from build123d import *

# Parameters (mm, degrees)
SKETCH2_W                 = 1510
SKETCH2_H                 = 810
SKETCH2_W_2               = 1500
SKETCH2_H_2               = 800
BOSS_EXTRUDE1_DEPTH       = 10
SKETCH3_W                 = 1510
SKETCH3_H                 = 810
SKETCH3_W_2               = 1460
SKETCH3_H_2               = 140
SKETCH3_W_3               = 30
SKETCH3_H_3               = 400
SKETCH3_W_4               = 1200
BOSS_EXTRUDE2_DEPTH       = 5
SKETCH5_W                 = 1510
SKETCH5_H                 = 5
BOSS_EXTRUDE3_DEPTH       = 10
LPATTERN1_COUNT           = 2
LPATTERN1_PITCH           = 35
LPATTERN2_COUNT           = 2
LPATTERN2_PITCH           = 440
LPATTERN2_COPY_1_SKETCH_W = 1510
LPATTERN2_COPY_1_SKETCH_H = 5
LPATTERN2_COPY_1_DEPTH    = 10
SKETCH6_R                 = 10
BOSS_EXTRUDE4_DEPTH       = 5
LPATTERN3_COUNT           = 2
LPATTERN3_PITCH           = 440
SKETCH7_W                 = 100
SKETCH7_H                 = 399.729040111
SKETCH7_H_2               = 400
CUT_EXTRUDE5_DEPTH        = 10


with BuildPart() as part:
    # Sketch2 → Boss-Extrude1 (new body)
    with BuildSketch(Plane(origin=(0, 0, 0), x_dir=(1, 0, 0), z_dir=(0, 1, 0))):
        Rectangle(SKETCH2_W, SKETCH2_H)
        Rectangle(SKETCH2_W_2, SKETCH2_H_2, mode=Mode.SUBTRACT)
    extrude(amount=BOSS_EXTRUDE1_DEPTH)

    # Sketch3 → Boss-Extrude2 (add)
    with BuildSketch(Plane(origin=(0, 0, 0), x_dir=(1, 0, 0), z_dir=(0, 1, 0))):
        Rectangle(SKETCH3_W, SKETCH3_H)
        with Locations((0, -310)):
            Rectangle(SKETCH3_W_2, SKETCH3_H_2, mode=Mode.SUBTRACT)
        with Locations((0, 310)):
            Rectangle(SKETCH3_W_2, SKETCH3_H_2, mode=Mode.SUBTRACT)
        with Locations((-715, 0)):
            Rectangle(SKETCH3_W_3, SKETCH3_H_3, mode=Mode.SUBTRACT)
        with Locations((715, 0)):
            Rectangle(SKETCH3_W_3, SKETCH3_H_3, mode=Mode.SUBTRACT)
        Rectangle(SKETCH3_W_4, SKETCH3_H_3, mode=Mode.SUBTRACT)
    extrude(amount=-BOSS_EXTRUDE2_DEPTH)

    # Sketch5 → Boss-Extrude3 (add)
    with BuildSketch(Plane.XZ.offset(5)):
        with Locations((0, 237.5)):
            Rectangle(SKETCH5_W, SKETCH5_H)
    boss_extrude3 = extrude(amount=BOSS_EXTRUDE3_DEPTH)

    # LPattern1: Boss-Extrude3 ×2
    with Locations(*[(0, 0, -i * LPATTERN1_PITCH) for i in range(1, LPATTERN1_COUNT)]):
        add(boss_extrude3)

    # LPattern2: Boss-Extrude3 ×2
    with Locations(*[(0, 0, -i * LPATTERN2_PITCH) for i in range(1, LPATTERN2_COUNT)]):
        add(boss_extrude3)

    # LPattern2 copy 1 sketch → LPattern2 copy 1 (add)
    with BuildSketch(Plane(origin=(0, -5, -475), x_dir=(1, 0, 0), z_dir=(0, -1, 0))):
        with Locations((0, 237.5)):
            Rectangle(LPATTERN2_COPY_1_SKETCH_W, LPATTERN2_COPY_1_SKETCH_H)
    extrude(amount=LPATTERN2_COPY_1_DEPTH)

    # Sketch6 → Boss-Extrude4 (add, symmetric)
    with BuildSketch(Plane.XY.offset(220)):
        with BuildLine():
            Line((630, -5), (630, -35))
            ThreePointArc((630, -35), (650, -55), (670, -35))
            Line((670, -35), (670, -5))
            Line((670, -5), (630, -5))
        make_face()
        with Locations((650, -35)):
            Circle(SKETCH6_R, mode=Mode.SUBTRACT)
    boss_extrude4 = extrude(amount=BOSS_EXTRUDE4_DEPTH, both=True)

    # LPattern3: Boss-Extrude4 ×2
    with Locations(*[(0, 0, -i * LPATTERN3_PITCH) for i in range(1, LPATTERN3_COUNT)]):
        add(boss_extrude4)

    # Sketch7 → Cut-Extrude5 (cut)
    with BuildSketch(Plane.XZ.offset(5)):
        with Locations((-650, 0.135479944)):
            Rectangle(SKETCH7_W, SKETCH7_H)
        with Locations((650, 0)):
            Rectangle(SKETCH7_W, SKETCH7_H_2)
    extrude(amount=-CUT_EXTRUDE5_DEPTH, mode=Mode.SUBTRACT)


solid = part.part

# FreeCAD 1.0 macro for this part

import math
import FreeCAD as App
import Part
import Sketcher
from FreeCAD import Vector

doc = App.newDocument("Part")
body = doc.addObject("PartDesign::Body", "Body")

# Sketch on XZ plane
sketch1 = body.newObject("Sketcher::SketchObject", "Sketch")
sketch1.AttachmentSupport = (doc.getObject("XZ_Plane"), [""])
sketch1.MapMode = "FlatFace"
sketch1.addGeometry(Part.LineSegment(Vector(-755, -405, 0), Vector(-755, 405, 0)), False)
sketch1.addGeometry(Part.LineSegment(Vector(-755, 405, 0), Vector(755, 405, 0)), False)
sketch1.addGeometry(Part.LineSegment(Vector(755, 405, 0), Vector(755, -405, 0)), False)
sketch1.addGeometry(Part.LineSegment(Vector(755, -405, 0), Vector(-755, -405, 0)), False)
sketch1.addGeometry(Part.LineSegment(Vector(750, 400, 0), Vector(-750, 400, 0)), False)
sketch1.addGeometry(Part.LineSegment(Vector(-750, 400, 0), Vector(-750, -400, 0)), False)
sketch1.addGeometry(Part.LineSegment(Vector(-750, -400, 0), Vector(750, -400, 0)), False)
sketch1.addGeometry(Part.LineSegment(Vector(750, -400, 0), Vector(750, 400, 0)), False)
sketch1.addConstraint(Sketcher.Constraint("Coincident", 0, 2, 1, 1))
sketch1.addConstraint(Sketcher.Constraint("Coincident", 1, 2, 2, 1))
sketch1.addConstraint(Sketcher.Constraint("Coincident", 2, 2, 3, 1))
sketch1.addConstraint(Sketcher.Constraint("Coincident", 3, 2, 0, 1))
sketch1.addConstraint(Sketcher.Constraint("Coincident", 4, 2, 5, 1))
sketch1.addConstraint(Sketcher.Constraint("Coincident", 5, 2, 6, 1))
sketch1.addConstraint(Sketcher.Constraint("Coincident", 6, 2, 7, 1))
sketch1.addConstraint(Sketcher.Constraint("Coincident", 7, 2, 4, 1))
sketch1.addConstraint(Sketcher.Constraint("Vertical", 0))
sketch1.addConstraint(Sketcher.Constraint("Horizontal", 1))
sketch1.addConstraint(Sketcher.Constraint("Vertical", 2))
sketch1.addConstraint(Sketcher.Constraint("Horizontal", 3))
sketch1.addConstraint(Sketcher.Constraint("Horizontal", 4))
sketch1.addConstraint(Sketcher.Constraint("Vertical", 5))
sketch1.addConstraint(Sketcher.Constraint("Horizontal", 6))
sketch1.addConstraint(Sketcher.Constraint("Vertical", 7))
sketch1.addConstraint(Sketcher.Constraint("Symmetric", 0, 2, 2, 2, -1, 1))
sketch1.addConstraint(Sketcher.Constraint("Symmetric", 4, 2, 6, 2, -1, 1))
sketch1.addConstraint(Sketcher.Constraint("DistanceX", 1, 1, 1, 2, 1510.0))
sketch1.addConstraint(Sketcher.Constraint("DistanceX", 4, 2, 4, 1, 1500.0))
sketch1.addConstraint(Sketcher.Constraint("DistanceY", 0, 1, 0, 2, 810.0))
sketch1.addConstraint(Sketcher.Constraint("DistanceY", 5, 2, 5, 1, 800.0))
pad1 = body.newObject("PartDesign::Pad", "Pad")
pad1.Profile = sketch1
pad1.Length = 10
pad1.Reversed = True

# Sketch on XZ plane
sketch2 = body.newObject("Sketcher::SketchObject", "Sketch001")
sketch2.AttachmentSupport = (doc.getObject("XZ_Plane"), [""])
sketch2.MapMode = "FlatFace"
sketch2.addGeometry(Part.LineSegment(Vector(-755, -405, 0), Vector(-755, 405, 0)), False)
sketch2.addGeometry(Part.LineSegment(Vector(-755, 405, 0), Vector(755, 405, 0)), False)
sketch2.addGeometry(Part.LineSegment(Vector(755, 405, 0), Vector(755, -405, 0)), False)
sketch2.addGeometry(Part.LineSegment(Vector(755, -405, 0), Vector(-755, -405, 0)), False)
sketch2.addGeometry(Part.LineSegment(Vector(730, 380, 0), Vector(-730, 380, 0)), False)
sketch2.addGeometry(Part.LineSegment(Vector(-730, 380, 0), Vector(-730, 240, 0)), False)
sketch2.addGeometry(Part.LineSegment(Vector(-730, 240, 0), Vector(730, 240, 0)), False)
sketch2.addGeometry(Part.LineSegment(Vector(730, 240, 0), Vector(730, 380, 0)), False)
sketch2.addGeometry(Part.LineSegment(Vector(-700, 200, 0), Vector(-730, 200, 0)), False)
sketch2.addGeometry(Part.LineSegment(Vector(-730, 200, 0), Vector(-730, -200, 0)), False)
sketch2.addGeometry(Part.LineSegment(Vector(-730, -200, 0), Vector(-700, -200, 0)), False)
sketch2.addGeometry(Part.LineSegment(Vector(-700, -200, 0), Vector(-700, 200, 0)), False)
sketch2.addGeometry(Part.LineSegment(Vector(600, 200, 0), Vector(-600, 200, 0)), False)
sketch2.addGeometry(Part.LineSegment(Vector(-600, 200, 0), Vector(-600, -200, 0)), False)
sketch2.addGeometry(Part.LineSegment(Vector(-600, -200, 0), Vector(600, -200, 0)), False)
sketch2.addGeometry(Part.LineSegment(Vector(600, -200, 0), Vector(600, 200, 0)), False)
sketch2.addGeometry(Part.LineSegment(Vector(730, 200, 0), Vector(700, 200, 0)), False)
sketch2.addGeometry(Part.LineSegment(Vector(700, 200, 0), Vector(700, -200, 0)), False)
sketch2.addGeometry(Part.LineSegment(Vector(700, -200, 0), Vector(730, -200, 0)), False)
sketch2.addGeometry(Part.LineSegment(Vector(730, -200, 0), Vector(730, 200, 0)), False)
sketch2.addGeometry(Part.LineSegment(Vector(730, -240, 0), Vector(-730, -240, 0)), False)
sketch2.addGeometry(Part.LineSegment(Vector(-730, -240, 0), Vector(-730, -380, 0)), False)
sketch2.addGeometry(Part.LineSegment(Vector(-730, -380, 0), Vector(730, -380, 0)), False)
sketch2.addGeometry(Part.LineSegment(Vector(730, -380, 0), Vector(730, -240, 0)), False)
sketch2.addConstraint(Sketcher.Constraint("Coincident", 0, 2, 1, 1))
sketch2.addConstraint(Sketcher.Constraint("Coincident", 1, 2, 2, 1))
sketch2.addConstraint(Sketcher.Constraint("Coincident", 2, 2, 3, 1))
sketch2.addConstraint(Sketcher.Constraint("Coincident", 3, 2, 0, 1))
sketch2.addConstraint(Sketcher.Constraint("Coincident", 4, 2, 5, 1))
sketch2.addConstraint(Sketcher.Constraint("Coincident", 5, 2, 6, 1))
sketch2.addConstraint(Sketcher.Constraint("Coincident", 6, 2, 7, 1))
sketch2.addConstraint(Sketcher.Constraint("Coincident", 7, 2, 4, 1))
sketch2.addConstraint(Sketcher.Constraint("Coincident", 8, 2, 9, 1))
sketch2.addConstraint(Sketcher.Constraint("Coincident", 9, 2, 10, 1))
sketch2.addConstraint(Sketcher.Constraint("Coincident", 10, 2, 11, 1))
sketch2.addConstraint(Sketcher.Constraint("Coincident", 11, 2, 8, 1))
sketch2.addConstraint(Sketcher.Constraint("Coincident", 12, 2, 13, 1))
sketch2.addConstraint(Sketcher.Constraint("Coincident", 13, 2, 14, 1))
sketch2.addConstraint(Sketcher.Constraint("Coincident", 14, 2, 15, 1))
sketch2.addConstraint(Sketcher.Constraint("Coincident", 15, 2, 12, 1))
sketch2.addConstraint(Sketcher.Constraint("Coincident", 16, 2, 17, 1))
sketch2.addConstraint(Sketcher.Constraint("Coincident", 17, 2, 18, 1))
sketch2.addConstraint(Sketcher.Constraint("Coincident", 18, 2, 19, 1))
sketch2.addConstraint(Sketcher.Constraint("Coincident", 19, 2, 16, 1))
sketch2.addConstraint(Sketcher.Constraint("Coincident", 20, 2, 21, 1))
sketch2.addConstraint(Sketcher.Constraint("Coincident", 21, 2, 22, 1))
sketch2.addConstraint(Sketcher.Constraint("Coincident", 22, 2, 23, 1))
sketch2.addConstraint(Sketcher.Constraint("Coincident", 23, 2, 20, 1))
sketch2.addConstraint(Sketcher.Constraint("Vertical", 0))
sketch2.addConstraint(Sketcher.Constraint("Horizontal", 1))
sketch2.addConstraint(Sketcher.Constraint("Vertical", 2))
sketch2.addConstraint(Sketcher.Constraint("Horizontal", 3))
sketch2.addConstraint(Sketcher.Constraint("Horizontal", 4))
sketch2.addConstraint(Sketcher.Constraint("Vertical", 5))
sketch2.addConstraint(Sketcher.Constraint("Horizontal", 6))
sketch2.addConstraint(Sketcher.Constraint("Vertical", 7))
sketch2.addConstraint(Sketcher.Constraint("Horizontal", 8))
sketch2.addConstraint(Sketcher.Constraint("Vertical", 9))
sketch2.addConstraint(Sketcher.Constraint("Horizontal", 10))
sketch2.addConstraint(Sketcher.Constraint("Vertical", 11))
sketch2.addConstraint(Sketcher.Constraint("Horizontal", 12))
sketch2.addConstraint(Sketcher.Constraint("Vertical", 13))
sketch2.addConstraint(Sketcher.Constraint("Horizontal", 14))
sketch2.addConstraint(Sketcher.Constraint("Vertical", 15))
sketch2.addConstraint(Sketcher.Constraint("Horizontal", 16))
sketch2.addConstraint(Sketcher.Constraint("Vertical", 17))
sketch2.addConstraint(Sketcher.Constraint("Horizontal", 18))
sketch2.addConstraint(Sketcher.Constraint("Vertical", 19))
sketch2.addConstraint(Sketcher.Constraint("Horizontal", 20))
sketch2.addConstraint(Sketcher.Constraint("Vertical", 21))
sketch2.addConstraint(Sketcher.Constraint("Horizontal", 22))
sketch2.addConstraint(Sketcher.Constraint("Vertical", 23))
sketch2.addConstraint(Sketcher.Constraint("Symmetric", 0, 2, 2, 2, -1, 1))
sketch2.addConstraint(Sketcher.Constraint("Symmetric", 12, 2, 14, 2, -1, 1))
sketch2.addConstraint(Sketcher.Constraint("Symmetric", 10, 2, 16, 2, -1, 1))
sketch2.addConstraint(Sketcher.Constraint("Symmetric", 8, 2, 18, 2, -1, 1))
sketch2.addConstraint(Sketcher.Constraint("Symmetric", 6, 2, 20, 2, -1, 1))
sketch2.addConstraint(Sketcher.Constraint("Symmetric", 4, 2, 22, 2, -1, 1))
sketch2.addConstraint(Sketcher.Constraint("Horizontal", 11, 2, 12, 2))
sketch2.addConstraint(Sketcher.Constraint("Horizontal", 10, 2, 13, 2))
sketch2.addConstraint(Sketcher.Constraint("Vertical", 5, 2, 8, 2))
sketch2.addConstraint(Sketcher.Constraint("Vertical", 7, 2, 18, 2))
sketch2.addConstraint(Sketcher.Constraint("DistanceX", 1, 1, 1, 2, 1510.0))
sketch2.addConstraint(Sketcher.Constraint("DistanceX", 4, 2, 4, 1, 1460.0))
sketch2.addConstraint(Sketcher.Constraint("DistanceX", 8, 2, 8, 1, 30.0))
sketch2.addConstraint(Sketcher.Constraint("DistanceX", 12, 2, 12, 1, 1200.0))
sketch2.addConstraint(Sketcher.Constraint("DistanceY", 0, 1, 0, 2, 810.0))
sketch2.addConstraint(Sketcher.Constraint("DistanceY", 5, 2, 5, 1, 140.0))
sketch2.addConstraint(Sketcher.Constraint("DistanceY", 9, 2, 9, 1, 400.0))
sketch2.addConstraint(Sketcher.Constraint("DistanceY", -1, 1, 4, 2, 380.0))
pad2 = body.newObject("PartDesign::Pad", "Pad001")
pad2.Profile = sketch2
pad2.Length = 5

# Sketch on XZ plane
sketch3 = body.newObject("Sketcher::SketchObject", "Sketch002")
sketch3.AttachmentSupport = (doc.getObject("XZ_Plane"), [""])
sketch3.MapMode = "FlatFace"
sketch3.AttachmentOffset = App.Placement(Vector(0, 0, 5), App.Rotation())
sketch3.addGeometry(Part.LineSegment(Vector(-755, 240, 0), Vector(-755, 235, 0)), False)
sketch3.addGeometry(Part.LineSegment(Vector(-755, 235, 0), Vector(755, 235, 0)), False)
sketch3.addGeometry(Part.LineSegment(Vector(755, 235, 0), Vector(755, 240, 0)), False)
sketch3.addGeometry(Part.LineSegment(Vector(755, 240, 0), Vector(-755, 240, 0)), False)
sketch3.addConstraint(Sketcher.Constraint("Coincident", 0, 2, 1, 1))
sketch3.addConstraint(Sketcher.Constraint("Coincident", 1, 2, 2, 1))
sketch3.addConstraint(Sketcher.Constraint("Coincident", 2, 2, 3, 1))
sketch3.addConstraint(Sketcher.Constraint("Coincident", 3, 2, 0, 1))
sketch3.addConstraint(Sketcher.Constraint("Vertical", 0))
sketch3.addConstraint(Sketcher.Constraint("Horizontal", 1))
sketch3.addConstraint(Sketcher.Constraint("Vertical", 2))
sketch3.addConstraint(Sketcher.Constraint("Horizontal", 3))
sketch3.addConstraint(Sketcher.Constraint("DistanceX", 1, 1, 1, 2, 1510.0))
sketch3.addConstraint(Sketcher.Constraint("DistanceY", 0, 2, 0, 1, 5.0))
sketch3.addConstraint(Sketcher.Constraint("DistanceX", 0, 2, -1, 1, 755.0))
sketch3.addConstraint(Sketcher.Constraint("DistanceY", -1, 1, 0, 2, 235.0))
pad3 = body.newObject("PartDesign::Pad", "Pad002")
pad3.Profile = sketch3
pad3.Length = 10
doc.recompute()

linearpattern = body.newObject("PartDesign::LinearPattern", "LinearPattern")
linearpattern.Originals = [pad3]
linearpattern.Direction = (doc.getObject("Z_Axis"), [""])
linearpattern.Mode = "offset"
linearpattern.Offset = 35
linearpattern.Occurrences = 2
linearpattern.Reversed = True
body.Tip = linearpattern
doc.recompute()

linearpattern2 = body.newObject("PartDesign::LinearPattern", "LinearPattern001")
linearpattern2.Originals = [pad3]
linearpattern2.Direction = (doc.getObject("Z_Axis"), [""])
linearpattern2.Mode = "offset"
linearpattern2.Offset = 440
linearpattern2.Occurrences = 2
linearpattern2.Reversed = True
body.Tip = linearpattern2

# Sketch on XZ plane
sketch4 = body.newObject("Sketcher::SketchObject", "Sketch003")
sketch4.AttachmentSupport = (doc.getObject("XZ_Plane"), [""])
sketch4.MapMode = "FlatFace"
sketch4.AttachmentOffset = App.Placement(Vector(0, 0, 5), App.Rotation())
sketch4.addGeometry(Part.LineSegment(Vector(-755, -235, 0), Vector(-755, -240, 0)), False)
sketch4.addGeometry(Part.LineSegment(Vector(-755, -240, 0), Vector(755, -240, 0)), False)
sketch4.addGeometry(Part.LineSegment(Vector(755, -240, 0), Vector(755, -235, 0)), False)
sketch4.addGeometry(Part.LineSegment(Vector(755, -235, 0), Vector(-755, -235, 0)), False)
sketch4.addConstraint(Sketcher.Constraint("Coincident", 0, 2, 1, 1))
sketch4.addConstraint(Sketcher.Constraint("Coincident", 1, 2, 2, 1))
sketch4.addConstraint(Sketcher.Constraint("Coincident", 2, 2, 3, 1))
sketch4.addConstraint(Sketcher.Constraint("Coincident", 3, 2, 0, 1))
sketch4.addConstraint(Sketcher.Constraint("Vertical", 0))
sketch4.addConstraint(Sketcher.Constraint("Horizontal", 1))
sketch4.addConstraint(Sketcher.Constraint("Vertical", 2))
sketch4.addConstraint(Sketcher.Constraint("Horizontal", 3))
sketch4.addConstraint(Sketcher.Constraint("DistanceX", 1, 1, 1, 2, 1510.0))
sketch4.addConstraint(Sketcher.Constraint("DistanceY", 0, 2, 0, 1, 5.0))
sketch4.addConstraint(Sketcher.Constraint("DistanceX", 0, 2, -1, 1, 755.0))
sketch4.addConstraint(Sketcher.Constraint("DistanceY", 0, 2, -1, 1, 240.0))
pad4 = body.newObject("PartDesign::Pad", "Pad003")
pad4.Profile = sketch4
pad4.Length = 10

# Sketch on XY plane
sketch5 = body.newObject("Sketcher::SketchObject", "Sketch004")
sketch5.AttachmentSupport = (doc.getObject("XY_Plane"), [""])
sketch5.MapMode = "FlatFace"
sketch5.AttachmentOffset = App.Placement(Vector(0, 0, 220), App.Rotation())
sketch5.addGeometry(Part.LineSegment(Vector(630, -5, 0), Vector(630, -35, 0)), False)
sketch5.addGeometry(Part.ArcOfCircle(Part.Circle(Vector(650, -35, 0), Vector(0, 0, 1), 20), math.radians(180), math.radians(360)), False)
sketch5.addGeometry(Part.LineSegment(Vector(670, -35, 0), Vector(670, -5, 0)), False)
sketch5.addGeometry(Part.LineSegment(Vector(670, -5, 0), Vector(630, -5, 0)), False)
sketch5.addGeometry(Part.Circle(Vector(650, -35, 0), Vector(0, 0, 1), 10), False)
sketch5.addConstraint(Sketcher.Constraint("Tangent", 0, 2, 1, 1))
sketch5.addConstraint(Sketcher.Constraint("Tangent", 1, 2, 2, 1))
sketch5.addConstraint(Sketcher.Constraint("Coincident", 2, 2, 3, 1))
sketch5.addConstraint(Sketcher.Constraint("Coincident", 3, 2, 0, 1))
sketch5.addConstraint(Sketcher.Constraint("Vertical", 0))
sketch5.addConstraint(Sketcher.Constraint("Vertical", 2))
sketch5.addConstraint(Sketcher.Constraint("Horizontal", 3))
sketch5.addConstraint(Sketcher.Constraint("Coincident", 4, 3, 1, 3))
sketch5.addConstraint(Sketcher.Constraint("Diameter", 4, 20.0))
sketch5.addConstraint(Sketcher.Constraint("Radius", 1, 20.0))
sketch5.addConstraint(Sketcher.Constraint("DistanceY", 0, 2, 0, 1, 30.0))
sketch5.addConstraint(Sketcher.Constraint("DistanceX", -1, 1, 1, 3, 650.0))
sketch5.addConstraint(Sketcher.Constraint("DistanceY", 1, 3, -1, 1, 35.0))
pad5 = body.newObject("PartDesign::Pad", "Pad004")
pad5.Profile = sketch5
pad5.Length = 10
pad5.Midplane = True
doc.recompute()

linearpattern3 = body.newObject("PartDesign::LinearPattern", "LinearPattern002")
linearpattern3.Originals = [pad5]
linearpattern3.Direction = (doc.getObject("Z_Axis"), [""])
linearpattern3.Mode = "offset"
linearpattern3.Offset = 440
linearpattern3.Occurrences = 2
linearpattern3.Reversed = True
body.Tip = linearpattern3

# Sketch on XZ plane
sketch6 = body.newObject("Sketcher::SketchObject", "Sketch005")
sketch6.AttachmentSupport = (doc.getObject("XZ_Plane"), [""])
sketch6.MapMode = "FlatFace"
sketch6.AttachmentOffset = App.Placement(Vector(0, 0, 5), App.Rotation())
sketch6.addGeometry(Part.LineSegment(Vector(-700, 200, 0), Vector(-700, -199.72904, 0)), False)
sketch6.addGeometry(Part.LineSegment(Vector(-700, -199.72904, 0), Vector(-600, -199.72904, 0)), False)
sketch6.addGeometry(Part.LineSegment(Vector(-600, -199.72904, 0), Vector(-600, 200, 0)), False)
sketch6.addGeometry(Part.LineSegment(Vector(-600, 200, 0), Vector(-700, 200, 0)), False)
sketch6.addGeometry(Part.LineSegment(Vector(600, 200, 0), Vector(600, -200, 0)), False)
sketch6.addGeometry(Part.LineSegment(Vector(600, -200, 0), Vector(700, -200, 0)), False)
sketch6.addGeometry(Part.LineSegment(Vector(700, -200, 0), Vector(700, 200, 0)), False)
sketch6.addGeometry(Part.LineSegment(Vector(700, 200, 0), Vector(600, 200, 0)), False)
sketch6.addConstraint(Sketcher.Constraint("Coincident", 0, 2, 1, 1))
sketch6.addConstraint(Sketcher.Constraint("Coincident", 1, 2, 2, 1))
sketch6.addConstraint(Sketcher.Constraint("Coincident", 2, 2, 3, 1))
sketch6.addConstraint(Sketcher.Constraint("Coincident", 3, 2, 0, 1))
sketch6.addConstraint(Sketcher.Constraint("Coincident", 4, 2, 5, 1))
sketch6.addConstraint(Sketcher.Constraint("Coincident", 5, 2, 6, 1))
sketch6.addConstraint(Sketcher.Constraint("Coincident", 6, 2, 7, 1))
sketch6.addConstraint(Sketcher.Constraint("Coincident", 7, 2, 4, 1))
sketch6.addConstraint(Sketcher.Constraint("Vertical", 0))
sketch6.addConstraint(Sketcher.Constraint("Horizontal", 1))
sketch6.addConstraint(Sketcher.Constraint("Vertical", 2))
sketch6.addConstraint(Sketcher.Constraint("Horizontal", 3))
sketch6.addConstraint(Sketcher.Constraint("Vertical", 4))
sketch6.addConstraint(Sketcher.Constraint("Horizontal", 5))
sketch6.addConstraint(Sketcher.Constraint("Vertical", 6))
sketch6.addConstraint(Sketcher.Constraint("Horizontal", 7))
sketch6.addConstraint(Sketcher.Constraint("Symmetric", 2, 2, 4, 2, -1, 1))
sketch6.addConstraint(Sketcher.Constraint("Symmetric", 3, 2, 6, 2, -2))
sketch6.addConstraint(Sketcher.Constraint("DistanceX", 1, 1, 1, 2, 100.0))
sketch6.addConstraint(Sketcher.Constraint("DistanceY", 4, 2, 4, 1, 400.0))
sketch6.addConstraint(Sketcher.Constraint("DistanceX", 0, 2, -1, 1, 700.0))
sketch6.addConstraint(Sketcher.Constraint("DistanceY", 0, 2, 0, 1, 399.72904))
pocket1 = body.newObject("PartDesign::Pocket", "Pocket")
pocket1.Profile = sketch6
pocket1.Length = 10

doc.recompute()
